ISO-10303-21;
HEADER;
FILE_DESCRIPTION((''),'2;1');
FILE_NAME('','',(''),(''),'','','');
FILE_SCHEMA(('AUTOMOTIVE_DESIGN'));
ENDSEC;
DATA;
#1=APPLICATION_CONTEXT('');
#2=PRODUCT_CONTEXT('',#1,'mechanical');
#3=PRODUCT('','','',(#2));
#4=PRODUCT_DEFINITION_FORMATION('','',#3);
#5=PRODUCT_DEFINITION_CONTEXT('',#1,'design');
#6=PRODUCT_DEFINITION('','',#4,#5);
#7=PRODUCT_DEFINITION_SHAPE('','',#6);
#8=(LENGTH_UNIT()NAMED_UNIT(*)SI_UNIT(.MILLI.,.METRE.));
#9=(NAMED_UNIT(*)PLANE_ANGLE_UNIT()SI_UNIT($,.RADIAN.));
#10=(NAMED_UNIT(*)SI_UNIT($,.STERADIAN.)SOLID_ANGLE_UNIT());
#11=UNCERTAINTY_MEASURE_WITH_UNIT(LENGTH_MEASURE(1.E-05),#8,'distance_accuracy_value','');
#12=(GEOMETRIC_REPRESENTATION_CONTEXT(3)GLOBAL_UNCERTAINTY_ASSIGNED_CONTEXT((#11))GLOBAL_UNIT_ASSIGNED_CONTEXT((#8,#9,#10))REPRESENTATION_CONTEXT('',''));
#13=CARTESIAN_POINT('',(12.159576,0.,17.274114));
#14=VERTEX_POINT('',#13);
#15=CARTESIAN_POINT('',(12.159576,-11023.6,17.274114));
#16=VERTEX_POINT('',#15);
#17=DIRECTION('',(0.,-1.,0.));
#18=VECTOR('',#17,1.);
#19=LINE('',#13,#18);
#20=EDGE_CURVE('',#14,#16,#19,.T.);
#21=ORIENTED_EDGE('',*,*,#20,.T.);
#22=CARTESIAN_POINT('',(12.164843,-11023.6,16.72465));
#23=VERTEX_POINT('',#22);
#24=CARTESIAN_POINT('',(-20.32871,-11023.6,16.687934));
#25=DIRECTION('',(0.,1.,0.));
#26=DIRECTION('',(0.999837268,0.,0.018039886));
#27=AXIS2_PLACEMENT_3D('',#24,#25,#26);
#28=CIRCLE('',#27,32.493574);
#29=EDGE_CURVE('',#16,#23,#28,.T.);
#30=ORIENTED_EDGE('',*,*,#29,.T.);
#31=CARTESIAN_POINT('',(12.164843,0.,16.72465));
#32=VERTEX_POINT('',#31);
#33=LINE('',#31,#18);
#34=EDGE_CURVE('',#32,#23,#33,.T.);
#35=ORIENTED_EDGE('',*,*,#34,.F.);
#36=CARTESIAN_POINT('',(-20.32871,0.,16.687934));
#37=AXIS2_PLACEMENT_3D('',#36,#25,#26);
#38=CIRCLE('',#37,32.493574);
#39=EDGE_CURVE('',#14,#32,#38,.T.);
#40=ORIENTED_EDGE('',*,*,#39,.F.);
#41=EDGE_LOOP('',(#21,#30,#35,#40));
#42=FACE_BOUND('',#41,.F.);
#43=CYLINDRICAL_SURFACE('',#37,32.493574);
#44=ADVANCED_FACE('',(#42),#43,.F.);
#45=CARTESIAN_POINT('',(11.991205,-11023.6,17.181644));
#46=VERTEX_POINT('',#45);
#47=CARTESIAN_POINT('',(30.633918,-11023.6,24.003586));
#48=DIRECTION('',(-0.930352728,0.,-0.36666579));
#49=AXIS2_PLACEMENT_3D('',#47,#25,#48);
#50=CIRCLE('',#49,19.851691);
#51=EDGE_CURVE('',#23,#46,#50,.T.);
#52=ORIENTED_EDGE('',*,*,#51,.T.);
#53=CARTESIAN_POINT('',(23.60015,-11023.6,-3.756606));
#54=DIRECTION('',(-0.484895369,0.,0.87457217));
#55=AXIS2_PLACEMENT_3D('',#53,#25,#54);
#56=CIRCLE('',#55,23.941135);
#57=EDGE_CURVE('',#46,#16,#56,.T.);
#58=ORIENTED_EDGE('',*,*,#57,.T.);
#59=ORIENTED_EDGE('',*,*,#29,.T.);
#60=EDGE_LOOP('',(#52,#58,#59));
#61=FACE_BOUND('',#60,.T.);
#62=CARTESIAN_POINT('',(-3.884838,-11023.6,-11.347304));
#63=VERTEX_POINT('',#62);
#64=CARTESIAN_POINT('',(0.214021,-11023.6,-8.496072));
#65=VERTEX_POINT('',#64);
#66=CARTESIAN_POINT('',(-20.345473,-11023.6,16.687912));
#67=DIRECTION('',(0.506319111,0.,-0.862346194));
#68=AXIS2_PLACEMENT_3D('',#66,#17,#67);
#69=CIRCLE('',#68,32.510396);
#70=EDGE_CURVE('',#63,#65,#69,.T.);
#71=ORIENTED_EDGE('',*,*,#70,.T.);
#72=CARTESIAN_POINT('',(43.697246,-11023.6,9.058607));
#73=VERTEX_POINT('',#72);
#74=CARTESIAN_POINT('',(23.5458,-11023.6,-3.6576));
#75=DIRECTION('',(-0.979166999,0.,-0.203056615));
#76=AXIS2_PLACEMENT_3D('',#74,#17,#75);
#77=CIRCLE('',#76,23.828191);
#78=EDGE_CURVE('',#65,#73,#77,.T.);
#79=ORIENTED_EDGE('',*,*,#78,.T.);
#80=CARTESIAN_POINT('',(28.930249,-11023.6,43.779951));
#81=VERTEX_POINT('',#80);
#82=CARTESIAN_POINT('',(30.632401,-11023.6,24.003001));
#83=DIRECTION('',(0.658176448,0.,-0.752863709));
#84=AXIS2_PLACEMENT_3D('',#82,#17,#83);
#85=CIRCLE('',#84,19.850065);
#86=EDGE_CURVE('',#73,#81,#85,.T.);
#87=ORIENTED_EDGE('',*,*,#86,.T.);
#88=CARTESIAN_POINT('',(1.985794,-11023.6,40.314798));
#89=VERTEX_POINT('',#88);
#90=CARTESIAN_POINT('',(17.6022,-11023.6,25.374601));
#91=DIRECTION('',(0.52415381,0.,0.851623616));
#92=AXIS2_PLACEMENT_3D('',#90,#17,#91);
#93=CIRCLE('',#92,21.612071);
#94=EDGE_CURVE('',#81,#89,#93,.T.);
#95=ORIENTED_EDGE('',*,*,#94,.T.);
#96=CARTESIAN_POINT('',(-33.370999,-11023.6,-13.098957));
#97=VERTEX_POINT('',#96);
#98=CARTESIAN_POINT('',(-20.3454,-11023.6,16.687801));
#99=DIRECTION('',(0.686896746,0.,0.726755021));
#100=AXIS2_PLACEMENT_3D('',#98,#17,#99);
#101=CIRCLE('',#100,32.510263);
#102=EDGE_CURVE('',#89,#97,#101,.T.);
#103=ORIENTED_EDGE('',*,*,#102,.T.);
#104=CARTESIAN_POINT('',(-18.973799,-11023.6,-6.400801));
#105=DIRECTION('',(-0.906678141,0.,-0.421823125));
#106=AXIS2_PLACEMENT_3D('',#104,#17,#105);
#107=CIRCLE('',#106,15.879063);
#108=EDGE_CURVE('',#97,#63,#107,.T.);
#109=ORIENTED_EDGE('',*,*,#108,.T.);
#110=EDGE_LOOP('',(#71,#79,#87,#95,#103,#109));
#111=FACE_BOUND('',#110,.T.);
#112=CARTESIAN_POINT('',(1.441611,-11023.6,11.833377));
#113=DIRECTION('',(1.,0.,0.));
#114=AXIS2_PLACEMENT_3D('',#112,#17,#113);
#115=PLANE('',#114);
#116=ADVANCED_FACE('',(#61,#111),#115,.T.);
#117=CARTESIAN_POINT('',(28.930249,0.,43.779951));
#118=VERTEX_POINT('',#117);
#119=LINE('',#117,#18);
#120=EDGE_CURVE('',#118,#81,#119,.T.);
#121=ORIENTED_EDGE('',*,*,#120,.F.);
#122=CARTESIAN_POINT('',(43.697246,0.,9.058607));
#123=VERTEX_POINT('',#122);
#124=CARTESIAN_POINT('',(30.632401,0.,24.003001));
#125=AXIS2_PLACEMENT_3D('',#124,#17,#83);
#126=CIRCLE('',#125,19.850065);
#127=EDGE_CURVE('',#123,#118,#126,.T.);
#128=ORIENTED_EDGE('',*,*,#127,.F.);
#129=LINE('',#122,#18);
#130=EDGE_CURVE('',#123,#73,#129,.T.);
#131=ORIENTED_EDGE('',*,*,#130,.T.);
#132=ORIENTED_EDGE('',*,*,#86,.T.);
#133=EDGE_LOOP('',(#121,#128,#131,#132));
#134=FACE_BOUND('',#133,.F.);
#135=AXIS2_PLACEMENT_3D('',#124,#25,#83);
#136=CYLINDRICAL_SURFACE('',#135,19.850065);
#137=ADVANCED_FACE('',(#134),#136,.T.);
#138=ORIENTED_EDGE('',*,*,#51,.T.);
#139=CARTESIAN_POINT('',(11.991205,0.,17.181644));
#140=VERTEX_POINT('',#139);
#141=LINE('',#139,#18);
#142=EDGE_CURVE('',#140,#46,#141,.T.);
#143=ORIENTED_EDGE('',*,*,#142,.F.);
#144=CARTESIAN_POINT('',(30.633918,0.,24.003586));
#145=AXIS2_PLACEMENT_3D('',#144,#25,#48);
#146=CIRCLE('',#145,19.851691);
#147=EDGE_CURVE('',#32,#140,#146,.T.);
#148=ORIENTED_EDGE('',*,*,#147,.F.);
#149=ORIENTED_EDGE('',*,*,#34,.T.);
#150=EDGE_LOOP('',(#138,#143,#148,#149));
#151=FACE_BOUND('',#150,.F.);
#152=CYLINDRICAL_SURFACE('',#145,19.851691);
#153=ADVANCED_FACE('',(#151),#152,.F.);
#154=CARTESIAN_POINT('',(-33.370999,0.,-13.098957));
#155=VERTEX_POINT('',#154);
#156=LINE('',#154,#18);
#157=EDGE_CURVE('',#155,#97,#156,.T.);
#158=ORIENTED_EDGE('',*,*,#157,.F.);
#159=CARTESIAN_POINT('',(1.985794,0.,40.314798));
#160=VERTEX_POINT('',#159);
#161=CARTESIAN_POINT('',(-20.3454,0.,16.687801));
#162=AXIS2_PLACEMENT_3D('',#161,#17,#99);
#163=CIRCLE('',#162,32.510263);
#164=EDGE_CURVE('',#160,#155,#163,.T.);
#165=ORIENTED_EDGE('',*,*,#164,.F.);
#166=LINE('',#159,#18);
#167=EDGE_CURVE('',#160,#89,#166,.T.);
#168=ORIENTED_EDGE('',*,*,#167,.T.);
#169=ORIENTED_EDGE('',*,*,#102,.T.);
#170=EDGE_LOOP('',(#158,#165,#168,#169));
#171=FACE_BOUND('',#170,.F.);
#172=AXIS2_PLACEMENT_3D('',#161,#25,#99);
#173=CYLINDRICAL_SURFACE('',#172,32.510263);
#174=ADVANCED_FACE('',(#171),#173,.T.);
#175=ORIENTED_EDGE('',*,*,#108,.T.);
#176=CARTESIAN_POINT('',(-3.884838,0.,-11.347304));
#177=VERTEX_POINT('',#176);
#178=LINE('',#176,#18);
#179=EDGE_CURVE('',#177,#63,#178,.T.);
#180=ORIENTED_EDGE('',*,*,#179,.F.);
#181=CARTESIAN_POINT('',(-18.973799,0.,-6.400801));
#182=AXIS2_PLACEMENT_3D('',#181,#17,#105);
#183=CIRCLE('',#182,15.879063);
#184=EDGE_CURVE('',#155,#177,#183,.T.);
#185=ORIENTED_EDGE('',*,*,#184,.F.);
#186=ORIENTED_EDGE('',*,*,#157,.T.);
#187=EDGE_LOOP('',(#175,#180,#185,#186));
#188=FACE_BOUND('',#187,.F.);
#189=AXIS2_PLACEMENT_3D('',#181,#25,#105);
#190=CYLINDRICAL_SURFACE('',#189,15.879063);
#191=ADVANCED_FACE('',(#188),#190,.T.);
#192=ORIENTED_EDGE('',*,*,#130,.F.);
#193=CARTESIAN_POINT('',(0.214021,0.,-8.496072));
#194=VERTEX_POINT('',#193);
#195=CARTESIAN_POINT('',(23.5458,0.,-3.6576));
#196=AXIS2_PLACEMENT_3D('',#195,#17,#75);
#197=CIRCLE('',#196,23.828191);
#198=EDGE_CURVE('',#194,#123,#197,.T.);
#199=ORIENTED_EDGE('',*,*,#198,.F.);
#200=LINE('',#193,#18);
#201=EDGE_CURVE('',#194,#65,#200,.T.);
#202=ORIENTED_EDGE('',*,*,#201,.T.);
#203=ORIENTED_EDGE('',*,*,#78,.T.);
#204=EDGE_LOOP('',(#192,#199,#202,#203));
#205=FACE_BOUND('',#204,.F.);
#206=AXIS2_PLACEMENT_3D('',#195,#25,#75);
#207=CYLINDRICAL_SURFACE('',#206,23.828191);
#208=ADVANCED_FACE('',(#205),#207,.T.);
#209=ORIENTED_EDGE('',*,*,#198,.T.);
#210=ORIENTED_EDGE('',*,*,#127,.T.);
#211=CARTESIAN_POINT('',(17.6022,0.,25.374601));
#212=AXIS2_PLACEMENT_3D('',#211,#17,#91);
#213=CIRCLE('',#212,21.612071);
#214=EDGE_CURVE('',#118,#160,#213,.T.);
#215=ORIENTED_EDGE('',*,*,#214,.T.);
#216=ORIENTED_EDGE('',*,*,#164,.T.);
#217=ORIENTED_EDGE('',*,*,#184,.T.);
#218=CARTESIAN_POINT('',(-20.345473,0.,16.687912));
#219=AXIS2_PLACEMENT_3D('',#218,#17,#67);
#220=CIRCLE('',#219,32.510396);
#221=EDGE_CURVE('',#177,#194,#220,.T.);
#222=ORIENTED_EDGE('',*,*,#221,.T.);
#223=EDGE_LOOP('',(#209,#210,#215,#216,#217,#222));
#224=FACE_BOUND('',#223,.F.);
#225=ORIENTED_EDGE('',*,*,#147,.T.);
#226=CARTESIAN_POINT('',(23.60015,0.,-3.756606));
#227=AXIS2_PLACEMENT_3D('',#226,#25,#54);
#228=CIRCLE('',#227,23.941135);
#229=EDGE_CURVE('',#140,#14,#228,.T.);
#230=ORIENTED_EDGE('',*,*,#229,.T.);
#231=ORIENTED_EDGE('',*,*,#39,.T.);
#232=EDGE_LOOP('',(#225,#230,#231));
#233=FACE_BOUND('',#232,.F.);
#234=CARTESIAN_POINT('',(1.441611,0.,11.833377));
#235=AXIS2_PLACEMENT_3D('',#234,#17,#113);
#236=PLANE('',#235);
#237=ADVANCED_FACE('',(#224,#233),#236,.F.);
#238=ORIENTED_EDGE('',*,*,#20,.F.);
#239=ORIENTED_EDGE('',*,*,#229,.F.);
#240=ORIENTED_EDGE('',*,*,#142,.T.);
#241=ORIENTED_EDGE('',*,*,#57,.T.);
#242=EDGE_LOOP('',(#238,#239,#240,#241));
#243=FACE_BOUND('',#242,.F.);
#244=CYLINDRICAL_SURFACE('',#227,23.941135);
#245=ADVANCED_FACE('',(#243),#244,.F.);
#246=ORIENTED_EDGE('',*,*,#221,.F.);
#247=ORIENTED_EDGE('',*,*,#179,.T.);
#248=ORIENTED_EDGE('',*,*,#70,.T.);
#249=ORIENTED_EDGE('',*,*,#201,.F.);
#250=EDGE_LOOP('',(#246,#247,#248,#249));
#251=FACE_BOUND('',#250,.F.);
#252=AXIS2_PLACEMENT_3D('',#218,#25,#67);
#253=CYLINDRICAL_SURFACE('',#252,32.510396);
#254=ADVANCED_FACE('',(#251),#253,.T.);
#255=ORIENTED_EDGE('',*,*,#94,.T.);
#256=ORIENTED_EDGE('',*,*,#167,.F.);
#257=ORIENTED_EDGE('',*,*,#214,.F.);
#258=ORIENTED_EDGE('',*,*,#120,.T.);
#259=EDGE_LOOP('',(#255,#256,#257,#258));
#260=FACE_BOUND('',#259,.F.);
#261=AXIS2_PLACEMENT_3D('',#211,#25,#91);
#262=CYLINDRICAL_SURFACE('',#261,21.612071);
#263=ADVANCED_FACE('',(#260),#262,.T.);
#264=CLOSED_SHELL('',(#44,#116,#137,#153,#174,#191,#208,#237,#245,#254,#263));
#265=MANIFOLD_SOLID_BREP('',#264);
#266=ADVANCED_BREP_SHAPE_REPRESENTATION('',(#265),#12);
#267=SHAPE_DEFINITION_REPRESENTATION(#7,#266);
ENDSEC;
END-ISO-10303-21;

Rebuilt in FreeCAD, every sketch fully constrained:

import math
import FreeCAD as App
import Part
import Sketcher

V = App.Vector
Q = App.Units.Quantity

doc = App.newDocument("Part")
body = doc.addObject("PartDesign::Body", "Body")

# Sketch on XZ plane
sketch1 = body.newObject("Sketcher::SketchObject", "Sketch")
sketch1.AttachmentSupport = (doc.getObject("XZ_Plane"), [""])
sketch1.MapMode = "FlatFace"
sketch1.addGeometry([
    Part.ArcOfCircle(Part.Circle(V(30.63, 24, 0), V(0, 0, 1), 19.85), math.radians(-49), math.radians(95)),  # 0
    Part.ArcOfCircle(Part.Circle(V(17.6, 25.37, 0), V(0, 0, 1), 21.61), math.radians(58), math.radians(136)),  # 1
    Part.ArcOfCircle(Part.Circle(V(-20.35, 16.69, 0), V(0, 0, 1), 32.51), math.radians(47), math.radians(246)),  # 2
    Part.ArcOfCircle(Part.Circle(V(-18.97, -6.4, 0), V(0, 0, 1), 15.88), math.radians(-155), math.radians(-18)),  # 3
    Part.ArcOfCircle(Part.Circle(V(-20.35, 16.69, 0), V(0, 0, 1), 32.51), math.radians(-59.58), math.radians(-50.77)),  # 4
    Part.ArcOfCircle(Part.Circle(V(23.55, -3.66, 0), V(0, 0, 1), 23.83), math.radians(-168), math.radians(32)),  # 5
    Part.ArcOfCircle(Part.Circle(V(-20.33, 16.69, 0), V(0, 0, 1), 32.49), math.radians(0.06), math.radians(1.03)),  # 6
    Part.ArcOfCircle(Part.Circle(V(30.63, 24, 0), V(0, 0, 1), 19.85), math.radians(-159.9), math.radians(-158.49)),  # 7
    Part.ArcOfCircle(Part.Circle(V(23.6, -3.76, 0), V(0, 0, 1), 23.94), math.radians(118.55), math.radians(119.01)),  # 8
], False)
sketch1.addConstraint([
    Sketcher.Constraint("Coincident", 0, 2, 1, 1),
    Sketcher.Constraint("Coincident", 1, 2, 2, 1),
    Sketcher.Constraint("Coincident", 2, 2, 3, 1),
    Sketcher.Constraint("Coincident", 3, 2, 4, 1),
    Sketcher.Constraint("Coincident", 4, 2, 5, 1),
    Sketcher.Constraint("Coincident", 5, 2, 0, 1),
    Sketcher.Constraint("Coincident", 6, 1, 7, 2),
    Sketcher.Constraint("Coincident", 7, 1, 8, 2),
    Sketcher.Constraint("Coincident", 8, 1, 6, 2),
    Sketcher.Constraint("DistanceX", 3, 3, 1, 3, Q("1.44 in")),
    Sketcher.Constraint("DistanceX", -1, 1, 0, 3, Q("1.206 in")),
    Sketcher.Constraint("DistanceY", -1, 1, 0, 3, Q("0.945 in")),
    Sketcher.Constraint("DistanceX", -1, 1, 1, 3, Q("0.693 in")),
    Sketcher.Constraint("DistanceY", -1, 1, 1, 3, Q("0.999 in")),
    Sketcher.Constraint("DistanceX", 2, 3, -1, 1, Q("0.801 in")),
    Sketcher.Constraint("DistanceY", -1, 1, 2, 3, Q("0.657 in")),
    Sketcher.Constraint("DistanceY", 3, 3, -1, 1, Q("0.252 in")),
    Sketcher.Constraint("DistanceX", -1, 1, 5, 3, Q("0.927 in")),
    Sketcher.Constraint("DistanceY", 5, 3, -1, 1, Q("0.144 in")),
    Sketcher.Constraint("Radius", 1, 21.612071),
    Sketcher.Constraint("Radius", 5, 23.828191),
    Sketcher.Constraint("Radius", 7, 19.851691),
    Sketcher.Constraint("Radius", 0, 19.850065),
    Sketcher.Constraint("Radius", 2, 32.510263),
    Sketcher.Constraint("Radius", 3, 15.879063),
    Sketcher.Constraint("Radius", 4, 32.510396),
    Sketcher.Constraint("Radius", 6, 32.493574),
    Sketcher.Constraint("Radius", 8, 23.941135),
    Sketcher.Constraint("DistanceX", 8, 3, 0, 2, 5.330099),
    Sketcher.Constraint("DistanceY", -1, 1, 4, 3, 16.687912),
    Sketcher.Constraint("DistanceX", 6, 3, -1, 1, 20.32871),
    Sketcher.Constraint("DistanceX", 3, 2, -1, 1, 3.884838),
    Sketcher.Constraint("DistanceY", -1, 1, 6, 1, 16.72465),
    Sketcher.Constraint("DistanceY", 8, 3, 7, 3, 27.760192),
    Sketcher.Constraint("DistanceX", 0, 2, 7, 3, 1.703669),
    Sketcher.Constraint("DistanceY", 2, 2, 6, 3, 29.786891),
])
pad1 = body.newObject("PartDesign::Pad", "Pad")
pad1.Profile = sketch1
pad1.Length = Q("434 in")

doc.recompute()
